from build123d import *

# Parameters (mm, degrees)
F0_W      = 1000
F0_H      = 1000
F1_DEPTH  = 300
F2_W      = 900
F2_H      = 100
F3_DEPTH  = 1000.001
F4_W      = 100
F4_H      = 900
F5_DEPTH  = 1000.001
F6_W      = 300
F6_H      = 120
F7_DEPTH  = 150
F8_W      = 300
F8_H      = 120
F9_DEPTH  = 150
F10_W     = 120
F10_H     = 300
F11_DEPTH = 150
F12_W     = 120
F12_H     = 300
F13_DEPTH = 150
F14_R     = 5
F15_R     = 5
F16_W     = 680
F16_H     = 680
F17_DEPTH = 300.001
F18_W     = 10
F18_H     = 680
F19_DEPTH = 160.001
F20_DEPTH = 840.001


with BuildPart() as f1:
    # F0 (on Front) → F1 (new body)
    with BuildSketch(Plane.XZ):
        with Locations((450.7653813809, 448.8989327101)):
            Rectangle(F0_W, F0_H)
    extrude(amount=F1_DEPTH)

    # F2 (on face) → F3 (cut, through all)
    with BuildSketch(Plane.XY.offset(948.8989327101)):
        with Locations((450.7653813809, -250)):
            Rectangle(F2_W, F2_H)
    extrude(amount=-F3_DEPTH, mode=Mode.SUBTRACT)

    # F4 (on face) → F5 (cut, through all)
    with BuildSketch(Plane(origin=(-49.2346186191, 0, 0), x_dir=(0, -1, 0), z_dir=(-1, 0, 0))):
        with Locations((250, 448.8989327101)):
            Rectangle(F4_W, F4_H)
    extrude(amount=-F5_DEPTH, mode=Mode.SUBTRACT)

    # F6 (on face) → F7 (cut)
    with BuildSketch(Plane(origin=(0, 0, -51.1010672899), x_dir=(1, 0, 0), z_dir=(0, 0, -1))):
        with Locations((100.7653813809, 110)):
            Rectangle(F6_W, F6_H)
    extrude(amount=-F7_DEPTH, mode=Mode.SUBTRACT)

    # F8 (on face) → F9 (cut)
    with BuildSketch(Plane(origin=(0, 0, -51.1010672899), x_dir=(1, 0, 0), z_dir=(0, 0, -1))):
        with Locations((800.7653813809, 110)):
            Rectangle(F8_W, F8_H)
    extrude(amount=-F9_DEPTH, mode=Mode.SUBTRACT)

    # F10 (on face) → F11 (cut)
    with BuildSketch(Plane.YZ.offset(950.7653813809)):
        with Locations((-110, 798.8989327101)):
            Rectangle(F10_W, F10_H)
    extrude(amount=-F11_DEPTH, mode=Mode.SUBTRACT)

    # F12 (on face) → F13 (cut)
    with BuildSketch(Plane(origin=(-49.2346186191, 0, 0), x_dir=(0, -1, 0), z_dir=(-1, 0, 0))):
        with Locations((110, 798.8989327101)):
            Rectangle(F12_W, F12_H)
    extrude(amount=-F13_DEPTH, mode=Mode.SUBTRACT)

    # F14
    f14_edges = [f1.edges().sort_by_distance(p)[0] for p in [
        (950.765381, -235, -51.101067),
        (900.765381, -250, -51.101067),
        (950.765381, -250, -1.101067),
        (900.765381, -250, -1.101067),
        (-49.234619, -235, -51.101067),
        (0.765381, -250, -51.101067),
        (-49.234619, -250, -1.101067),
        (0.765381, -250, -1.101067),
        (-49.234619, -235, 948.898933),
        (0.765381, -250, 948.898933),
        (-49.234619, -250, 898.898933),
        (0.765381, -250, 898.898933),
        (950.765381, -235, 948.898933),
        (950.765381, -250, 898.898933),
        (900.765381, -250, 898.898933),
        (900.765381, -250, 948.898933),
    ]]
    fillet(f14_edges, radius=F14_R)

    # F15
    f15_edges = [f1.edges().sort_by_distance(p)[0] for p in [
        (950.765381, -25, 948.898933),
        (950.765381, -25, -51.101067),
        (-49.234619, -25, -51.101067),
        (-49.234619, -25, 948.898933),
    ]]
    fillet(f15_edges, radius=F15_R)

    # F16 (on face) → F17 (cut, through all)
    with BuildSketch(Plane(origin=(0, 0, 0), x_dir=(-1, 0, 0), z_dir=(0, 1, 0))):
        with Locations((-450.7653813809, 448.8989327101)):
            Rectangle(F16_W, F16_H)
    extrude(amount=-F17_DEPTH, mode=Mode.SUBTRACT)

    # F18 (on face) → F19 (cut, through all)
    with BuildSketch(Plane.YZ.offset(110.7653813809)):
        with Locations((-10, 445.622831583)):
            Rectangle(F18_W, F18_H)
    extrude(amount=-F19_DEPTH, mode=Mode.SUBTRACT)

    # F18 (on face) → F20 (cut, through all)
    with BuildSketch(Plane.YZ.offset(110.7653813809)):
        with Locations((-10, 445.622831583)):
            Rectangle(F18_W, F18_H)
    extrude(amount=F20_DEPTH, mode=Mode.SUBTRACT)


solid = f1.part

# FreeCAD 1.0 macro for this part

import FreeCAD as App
import Part
import Sketcher

V = App.Vector
Q = App.Units.Quantity


def edges_at(feature, points):
    """Names of the edges that pass closest to the given points."""
    edges = feature.Shape.Edges
    near = lambda p: min(range(len(edges)), key=lambda i: edges[i].distToShape(Part.Vertex(*p))[0])
    return sorted({f"Edge{near(p) + 1}" for p in points})


def add_polygon(sketch, points):
    """Adds a closed chain of lines whose ends are joined by coincident constraints."""
    first, n = sketch.GeometryCount, len(points)
    for a, b in zip(points, points[1:] + points[:1]):
        sketch.addGeometry(Part.LineSegment(App.Vector(*a, 0), App.Vector(*b, 0)), False)
    for i in range(n):
        sketch.addConstraint(Sketcher.Constraint("Coincident", first + i, 2, first + (i + 1) % n, 1))

doc = App.newDocument("Part")
body = doc.addObject("PartDesign::Body", "Body")

# Sketch on XZ plane
sketch1 = body.newObject("Sketcher::SketchObject", "Sketch")
sketch1.AttachmentSupport = (doc.getObject("XZ_Plane"), [""])
sketch1.MapMode = "FlatFace"
add_polygon(sketch1, [(-49.234619, 948.898933), (-49.234619, -51.101067), (950.765381, -51.101067), (950.765381, 948.898933)])  # lines 0-3
sketch1.addConstraint([
    Sketcher.Constraint("Vertical", 0),
    Sketcher.Constraint("Horizontal", 1),
    Sketcher.Constraint("Vertical", 2),
    Sketcher.Constraint("Horizontal", 3),
    Sketcher.Constraint("Equal", 3, 0),
    Sketcher.Constraint("DistanceX", 1, 1, 1, 2, Q("1000 mm")),
    Sketcher.Constraint("DistanceX", 0, 2, -1, 1, Q("49.234619 mm")),
    Sketcher.Constraint("DistanceY", 0, 2, -1, 1, Q("51.101067 mm")),
])
pad1 = body.newObject("PartDesign::Pad", "Pad")
pad1.Profile = sketch1
pad1.Length = 300

# Sketch on XY plane
sketch2 = body.newObject("Sketcher::SketchObject", "Sketch001")
sketch2.AttachmentSupport = (doc.getObject("XY_Plane"), [""])
sketch2.MapMode = "FlatFace"
sketch2.AttachmentOffset = App.Placement(V(0, 0, 948.898933), App.Rotation())
add_polygon(sketch2, [(0.765381, -200), (0.765381, -300), (900.765381, -300), (900.765381, -200)])  # lines 0-3
sketch2.addConstraint([
    Sketcher.Constraint("Vertical", 0),
    Sketcher.Constraint("Horizontal", 1),
    Sketcher.Constraint("Vertical", 2),
    Sketcher.Constraint("Horizontal", 3),
    Sketcher.Constraint("DistanceX", 1, 1, 1, 2, Q("900 mm")),
    Sketcher.Constraint("DistanceY", 0, 2, 0, 1, Q("100 mm")),
    Sketcher.Constraint("DistanceY", 0, 2, -1, 1, Q("300 mm")),
    Sketcher.Constraint("DistanceX", -1, 1, 0, 2, Q("0.765381 mm")),
])
pocket1 = body.newObject("PartDesign::Pocket", "Pocket")
pocket1.Profile = sketch2
pocket1.Type = "ThroughAll"

# Sketch on YZ plane
sketch3 = body.newObject("Sketcher::SketchObject", "Sketch002")
sketch3.AttachmentSupport = (doc.getObject("YZ_Plane"), [""])
sketch3.MapMode = "FlatFace"
sketch3.AttachmentOffset = App.Placement(V(0, 0, -49.234619), App.Rotation())
add_polygon(sketch3, [(-200, 898.898933), (-200, -1.101067), (-300, -1.101067), (-300, 898.898933)])  # lines 0-3
sketch3.addConstraint([
    Sketcher.Constraint("Vertical", 0),
    Sketcher.Constraint("Horizontal", 1),
    Sketcher.Constraint("Vertical", 2),
    Sketcher.Constraint("Horizontal", 3),
    Sketcher.Constraint("DistanceX", 1, 2, 1, 1, Q("100 mm")),
    Sketcher.Constraint("DistanceY", 0, 2, 0, 1, Q("900 mm")),
    Sketcher.Constraint("DistanceX", 0, 2, -1, 1, Q("200 mm")),
    Sketcher.Constraint("DistanceY", 0, 2, -1, 1, Q("1.101067 mm")),
])
pocket2 = body.newObject("PartDesign::Pocket", "Pocket001")
pocket2.Profile = sketch3
pocket2.Type = "ThroughAll"
pocket2.Reversed = True

# Sketch on XY plane
sketch4 = body.newObject("Sketcher::SketchObject", "Sketch003")
sketch4.AttachmentSupport = (doc.getObject("XY_Plane"), [""])
sketch4.MapMode = "FlatFace"
sketch4.AttachmentOffset = App.Placement(V(0, 0, -51.101067), App.Rotation())
add_polygon(sketch4, [(-49.234619, -170), (-49.234619, -50), (250.765381, -50), (250.765381, -170)])  # lines 0-3
sketch4.addConstraint([
    Sketcher.Constraint("Vertical", 0),
    Sketcher.Constraint("Horizontal", 1),
    Sketcher.Constraint("Vertical", 2),
    Sketcher.Constraint("Horizontal", 3),
    Sketcher.Constraint("DistanceX", 1, 1, 1, 2, Q("300 mm")),
    Sketcher.Constraint("DistanceY", 0, 1, 0, 2, Q("120 mm")),
    Sketcher.Constraint("DistanceY", 0, 2, -1, 1, Q("50 mm")),
    Sketcher.Constraint("DistanceX", 0, 2, -1, 1, Q("49.234619 mm")),
])
pocket3 = body.newObject("PartDesign::Pocket", "Pocket002")
pocket3.Profile = sketch4
pocket3.Length = 150
pocket3.Reversed = True

# Sketch on XY plane
sketch5 = body.newObject("Sketcher::SketchObject", "Sketch004")
sketch5.AttachmentSupport = (doc.getObject("XY_Plane"), [""])
sketch5.MapMode = "FlatFace"
sketch5.AttachmentOffset = App.Placement(V(0, 0, -51.101067), App.Rotation())
add_polygon(sketch5, [(650.765381, -170), (650.765381, -50), (950.765381, -50), (950.765381, -170)])  # lines 0-3
sketch5.addConstraint([
    Sketcher.Constraint("Vertical", 0),
    Sketcher.Constraint("Horizontal", 1),
    Sketcher.Constraint("Vertical", 2),
    Sketcher.Constraint("Horizontal", 3),
    Sketcher.Constraint("DistanceX", 1, 1, 1, 2, Q("300 mm")),
    Sketcher.Constraint("DistanceY", 0, 1, 0, 2, Q("120 mm")),
    Sketcher.Constraint("DistanceY", 0, 2, -1, 1, Q("50 mm")),
    Sketcher.Constraint("DistanceX", -1, 1, 0, 2, Q("650.765381 mm")),
])
pocket4 = body.newObject("PartDesign::Pocket", "Pocket003")
pocket4.Profile = sketch5
pocket4.Length = 150
pocket4.Reversed = True

# Sketch on YZ plane
sketch6 = body.newObject("Sketcher::SketchObject", "Sketch005")
sketch6.AttachmentSupport = (doc.getObject("YZ_Plane"), [""])
sketch6.MapMode = "FlatFace"
sketch6.AttachmentOffset = App.Placement(V(0, 0, 950.765381), App.Rotation())
add_polygon(sketch6, [(-170, 948.898933), (-170, 648.898933), (-50, 648.898933), (-50, 948.898933)])  # lines 0-3
sketch6.addConstraint([
    Sketcher.Constraint("Vertical", 0),
    Sketcher.Constraint("Horizontal", 1),
    Sketcher.Constraint("Vertical", 2),
    Sketcher.Constraint("Horizontal", 3),
    Sketcher.Constraint("DistanceX", 1, 1, 1, 2, Q("120 mm")),
    Sketcher.Constraint("DistanceY", 0, 2, 0, 1, Q("300 mm")),
    Sketcher.Constraint("DistanceX", 0, 2, -1, 1, Q("170 mm")),
    Sketcher.Constraint("DistanceY", -1, 1, 0, 2, Q("648.898933 mm")),
])
pocket5 = body.newObject("PartDesign::Pocket", "Pocket004")
pocket5.Profile = sketch6
pocket5.Length = 150

# Sketch on YZ plane
sketch7 = body.newObject("Sketcher::SketchObject", "Sketch006")
sketch7.AttachmentSupport = (doc.getObject("YZ_Plane"), [""])
sketch7.MapMode = "FlatFace"
sketch7.AttachmentOffset = App.Placement(V(0, 0, -49.234619), App.Rotation())
add_polygon(sketch7, [(-50, 948.898933), (-50, 648.898933), (-170, 648.898933), (-170, 948.898933)])  # lines 0-3
sketch7.addConstraint([
    Sketcher.Constraint("Vertical", 0),
    Sketcher.Constraint("Horizontal", 1),
    Sketcher.Constraint("Vertical", 2),
    Sketcher.Constraint("Horizontal", 3),
    Sketcher.Constraint("DistanceX", 1, 2, 1, 1, Q("120 mm")),
    Sketcher.Constraint("DistanceY", 0, 2, 0, 1, Q("300 mm")),
    Sketcher.Constraint("DistanceX", 0, 2, -1, 1, Q("50 mm")),
    Sketcher.Constraint("DistanceY", -1, 1, 0, 2, Q("648.898933 mm")),
])
pocket6 = body.newObject("PartDesign::Pocket", "Pocket005")
pocket6.Profile = sketch7
pocket6.Length = 150
pocket6.Reversed = True
doc.recompute()

fillet = body.newObject("PartDesign::Fillet", "Fillet")
fillet.Base = (pocket6, edges_at(pocket6, [
    (950.765, -235, -51.101),
    (900.765, -250, -51.101),
    (950.765, -250, -1.101),
    (900.765, -250, -1.101),
    (-49.235, -235, -51.101),
    (0.765, -250, -51.101),
    (-49.235, -250, -1.101),
    (0.765, -250, -1.101),
    (-49.235, -235, 948.899),
    (0.765, -250, 948.899),
    (-49.235, -250, 898.899),
    (0.765, -250, 898.899),
    (950.765, -235, 948.899),
    (950.765, -250, 898.899),
    (900.765, -250, 898.899),
    (900.765, -250, 948.899),
]))
fillet.Radius = 5
doc.recompute()

fillet2 = body.newObject("PartDesign::Fillet", "Fillet001")
fillet2.Base = (fillet, edges_at(fillet, [
    (950.765, -25, 948.899),
    (950.765, -25, -51.101),
    (-49.235, -25, -51.101),
    (-49.235, -25, 948.899),
]))
fillet2.Radius = 5

# Sketch on XZ plane
sketch8 = body.newObject("Sketcher::SketchObject", "Sketch007")
sketch8.AttachmentSupport = (doc.getObject("XZ_Plane"), [""])
sketch8.MapMode = "FlatFace"
add_polygon(sketch8, [(790.765381, 788.898933), (790.765381, 108.898933), (110.765381, 108.898933), (110.765381, 788.898933)])  # lines 0-3
sketch8.addConstraint([
    Sketcher.Constraint("Vertical", 0),
    Sketcher.Constraint("Horizontal", 1),
    Sketcher.Constraint("Vertical", 2),
    Sketcher.Constraint("Horizontal", 3),
    Sketcher.Constraint("Equal", 3, 0),
    Sketcher.Constraint("DistanceX", 1, 2, 1, 1, Q("680 mm")),
    Sketcher.Constraint("DistanceX", -1, 1, 0, 2, Q("790.765381 mm")),
    Sketcher.Constraint("DistanceY", -1, 1, 0, 2, Q("108.898933 mm")),
])
pocket7 = body.newObject("PartDesign::Pocket", "Pocket006")
pocket7.Profile = sketch8
pocket7.Type = "ThroughAll"
pocket7.Reversed = True

# Sketch on YZ plane
sketch9 = body.newObject("Sketcher::SketchObject", "Sketch008")
sketch9.AttachmentSupport = (doc.getObject("YZ_Plane"), [""])
sketch9.MapMode = "FlatFace"
sketch9.AttachmentOffset = App.Placement(V(0, 0, 110.765381), App.Rotation())
add_polygon(sketch9, [(-15, 785.622832), (-15, 105.622832), (-5, 105.622832), (-5, 785.622832)])  # lines 0-3
sketch9.addConstraint([
    Sketcher.Constraint("Vertical", 0),
    Sketcher.Constraint("Horizontal", 1),
    Sketcher.Constraint("Vertical", 2),
    Sketcher.Constraint("Horizontal", 3),
    Sketcher.Constraint("DistanceX", 1, 1, 1, 2, Q("10 mm")),
    Sketcher.Constraint("DistanceY", 0, 2, 0, 1, Q("680 mm")),
    Sketcher.Constraint("DistanceX", 0, 2, -1, 1, Q("15 mm")),
    Sketcher.Constraint("DistanceY", -1, 1, 0, 2, Q("105.622832 mm")),
])
pocket8 = body.newObject("PartDesign::Pocket", "Pocket007")
pocket8.Profile = sketch9
pocket8.Type = "ThroughAll"

# Sketch on YZ plane
sketch10 = body.newObject("Sketcher::SketchObject", "Sketch009")
sketch10.AttachmentSupport = (doc.getObject("YZ_Plane"), [""])
sketch10.MapMode = "FlatFace"
sketch10.AttachmentOffset = App.Placement(V(0, 0, 110.765381), App.Rotation())
add_polygon(sketch10, [(-15, 785.622832), (-15, 105.622832), (-5, 105.622832), (-5, 785.622832)])  # lines 0-3
sketch10.addConstraint([
    Sketcher.Constraint("Vertical", 0),
    Sketcher.Constraint("Horizontal", 1),
    Sketcher.Constraint("Vertical", 2),
    Sketcher.Constraint("Horizontal", 3),
    Sketcher.Constraint("DistanceX", 1, 1, 1, 2, Q("10 mm")),
    Sketcher.Constraint("DistanceY", 0, 2, 0, 1, Q("680 mm")),
    Sketcher.Constraint("DistanceX", 0, 2, -1, 1, Q("15 mm")),
    Sketcher.Constraint("DistanceY", -1, 1, 0, 2, Q("105.622832 mm")),
])
pocket9 = body.newObject("PartDesign::Pocket", "Pocket008")
pocket9.Profile = sketch10
pocket9.Type = "ThroughAll"
pocket9.Reversed = True

doc.recompute()
